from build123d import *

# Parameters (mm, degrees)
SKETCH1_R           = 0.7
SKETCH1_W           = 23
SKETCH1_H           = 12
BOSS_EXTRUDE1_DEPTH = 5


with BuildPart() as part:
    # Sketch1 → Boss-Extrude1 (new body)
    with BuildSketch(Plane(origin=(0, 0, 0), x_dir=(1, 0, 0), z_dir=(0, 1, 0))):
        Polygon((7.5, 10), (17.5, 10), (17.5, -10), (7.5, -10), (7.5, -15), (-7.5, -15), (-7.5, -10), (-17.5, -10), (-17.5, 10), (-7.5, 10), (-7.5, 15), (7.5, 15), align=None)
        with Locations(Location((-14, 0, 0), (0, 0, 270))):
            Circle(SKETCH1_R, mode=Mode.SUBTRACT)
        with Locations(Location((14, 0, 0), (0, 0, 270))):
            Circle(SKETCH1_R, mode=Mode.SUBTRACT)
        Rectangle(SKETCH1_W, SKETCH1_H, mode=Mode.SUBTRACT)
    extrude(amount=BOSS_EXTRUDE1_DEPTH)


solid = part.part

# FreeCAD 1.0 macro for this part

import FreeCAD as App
import Part
import Sketcher
Q = App.Units.Quantity


def add_polygon(sketch, points):
    """Adds a closed chain of lines whose ends are joined by coincident constraints."""
    first, n = sketch.GeometryCount, len(points)
    for a, b in zip(points, points[1:] + points[:1]):
        sketch.addGeometry(Part.LineSegment(App.Vector(*a, 0), App.Vector(*b, 0)), False)
    for i in range(n):
        sketch.addConstraint(Sketcher.Constraint("Coincident", first + i, 2, first + (i + 1) % n, 1))

doc = App.newDocument("Part")
body = doc.addObject("PartDesign::Body", "Body")

# Sketch on XZ plane
sketch1 = body.newObject("Sketcher::SketchObject", "Sketch")
sketch1.AttachmentSupport = (doc.getObject("XZ_Plane"), [""])
sketch1.MapMode = "FlatFace"
add_polygon(sketch1, [(17.5, -10), (7.5, -10), (7.5, -15), (-7.5, -15), (-7.5, -10), (-17.5, -10), (-17.5, 10), (-7.5, 10), (-7.5, 15), (7.5, 15), (7.5, 10), (17.5, 10)])  # lines 0-11
sketch1.addGeometry(Part.Circle(App.Vector(14, 0, 0), App.Vector(0, 0, 1), 0.7), False)  # 12
add_polygon(sketch1, [(-11.5, 6), (-11.5, -6), (11.5, -6), (11.5, 6)])  # lines 13-16
sketch1.addGeometry(Part.Circle(App.Vector(-14, 0, 0), App.Vector(0, 0, 1), 0.7), False)  # 17
sketch1.addConstraint(Sketcher.Constraint("Horizontal", 0))
sketch1.addConstraint(Sketcher.Constraint("Vertical", 1))
sketch1.addConstraint(Sketcher.Constraint("Horizontal", 2))
sketch1.addConstraint(Sketcher.Constraint("Vertical", 3))
sketch1.addConstraint(Sketcher.Constraint("Horizontal", 4))
sketch1.addConstraint(Sketcher.Constraint("Vertical", 5))
sketch1.addConstraint(Sketcher.Constraint("Horizontal", 6))
sketch1.addConstraint(Sketcher.Constraint("Vertical", 7))
sketch1.addConstraint(Sketcher.Constraint("Horizontal", 8))
sketch1.addConstraint(Sketcher.Constraint("Vertical", 9))
sketch1.addConstraint(Sketcher.Constraint("Horizontal", 10))
sketch1.addConstraint(Sketcher.Constraint("Vertical", 11))
sketch1.addConstraint(Sketcher.Constraint("Vertical", 13))
sketch1.addConstraint(Sketcher.Constraint("Horizontal", 14))
sketch1.addConstraint(Sketcher.Constraint("Vertical", 15))
sketch1.addConstraint(Sketcher.Constraint("Horizontal", 16))
sketch1.addConstraint(Sketcher.Constraint("Equal", 12, 17))
sketch1.addConstraint(Sketcher.Constraint("Symmetric", 12, 3, 17, 3, -1, 1))
sketch1.addConstraint(Sketcher.Constraint("Symmetric", 0, 2, 6, 2, -1, 1))
sketch1.addConstraint(Sketcher.Constraint("Symmetric", 2, 2, 8, 2, -1, 1))
sketch1.addConstraint(Sketcher.Constraint("Symmetric", 4, 2, 10, 2, -1, 1))
sketch1.addConstraint(Sketcher.Constraint("Symmetric", 13, 2, 15, 2, -1, 1))
sketch1.addConstraint(Sketcher.Constraint("Symmetric", 0, 2, 3, 2, -2))
sketch1.addConstraint(Sketcher.Constraint("PointOnObject", 12, 3, -1))
sketch1.addConstraint(Sketcher.Constraint("Diameter", 12, Q("1.4 mm")))
sketch1.addConstraint(Sketcher.Constraint("DistanceX", 0, 2, 0, 1, Q("10 mm")))
sketch1.addConstraint(Sketcher.Constraint("DistanceX", 2, 2, 2, 1, Q("15 mm")))
sketch1.addConstraint(Sketcher.Constraint("DistanceX", 14, 1, 14, 2, Q("23 mm")))
sketch1.addConstraint(Sketcher.Constraint("DistanceY", 1, 2, 1, 1, Q("5 mm")))
sketch1.addConstraint(Sketcher.Constraint("DistanceY", 5, 1, 5, 2, Q("20 mm")))
sketch1.addConstraint(Sketcher.Constraint("DistanceY", 13, 2, 13, 1, Q("12 mm")))
sketch1.addConstraint(Sketcher.Constraint("DistanceX", -1, 1, 12, 3, Q("14 mm")))
pad1 = body.newObject("PartDesign::Pad", "Pad")
pad1.Profile = sketch1
pad1.Length = 5
pad1.Reversed = True

doc.recompute()
